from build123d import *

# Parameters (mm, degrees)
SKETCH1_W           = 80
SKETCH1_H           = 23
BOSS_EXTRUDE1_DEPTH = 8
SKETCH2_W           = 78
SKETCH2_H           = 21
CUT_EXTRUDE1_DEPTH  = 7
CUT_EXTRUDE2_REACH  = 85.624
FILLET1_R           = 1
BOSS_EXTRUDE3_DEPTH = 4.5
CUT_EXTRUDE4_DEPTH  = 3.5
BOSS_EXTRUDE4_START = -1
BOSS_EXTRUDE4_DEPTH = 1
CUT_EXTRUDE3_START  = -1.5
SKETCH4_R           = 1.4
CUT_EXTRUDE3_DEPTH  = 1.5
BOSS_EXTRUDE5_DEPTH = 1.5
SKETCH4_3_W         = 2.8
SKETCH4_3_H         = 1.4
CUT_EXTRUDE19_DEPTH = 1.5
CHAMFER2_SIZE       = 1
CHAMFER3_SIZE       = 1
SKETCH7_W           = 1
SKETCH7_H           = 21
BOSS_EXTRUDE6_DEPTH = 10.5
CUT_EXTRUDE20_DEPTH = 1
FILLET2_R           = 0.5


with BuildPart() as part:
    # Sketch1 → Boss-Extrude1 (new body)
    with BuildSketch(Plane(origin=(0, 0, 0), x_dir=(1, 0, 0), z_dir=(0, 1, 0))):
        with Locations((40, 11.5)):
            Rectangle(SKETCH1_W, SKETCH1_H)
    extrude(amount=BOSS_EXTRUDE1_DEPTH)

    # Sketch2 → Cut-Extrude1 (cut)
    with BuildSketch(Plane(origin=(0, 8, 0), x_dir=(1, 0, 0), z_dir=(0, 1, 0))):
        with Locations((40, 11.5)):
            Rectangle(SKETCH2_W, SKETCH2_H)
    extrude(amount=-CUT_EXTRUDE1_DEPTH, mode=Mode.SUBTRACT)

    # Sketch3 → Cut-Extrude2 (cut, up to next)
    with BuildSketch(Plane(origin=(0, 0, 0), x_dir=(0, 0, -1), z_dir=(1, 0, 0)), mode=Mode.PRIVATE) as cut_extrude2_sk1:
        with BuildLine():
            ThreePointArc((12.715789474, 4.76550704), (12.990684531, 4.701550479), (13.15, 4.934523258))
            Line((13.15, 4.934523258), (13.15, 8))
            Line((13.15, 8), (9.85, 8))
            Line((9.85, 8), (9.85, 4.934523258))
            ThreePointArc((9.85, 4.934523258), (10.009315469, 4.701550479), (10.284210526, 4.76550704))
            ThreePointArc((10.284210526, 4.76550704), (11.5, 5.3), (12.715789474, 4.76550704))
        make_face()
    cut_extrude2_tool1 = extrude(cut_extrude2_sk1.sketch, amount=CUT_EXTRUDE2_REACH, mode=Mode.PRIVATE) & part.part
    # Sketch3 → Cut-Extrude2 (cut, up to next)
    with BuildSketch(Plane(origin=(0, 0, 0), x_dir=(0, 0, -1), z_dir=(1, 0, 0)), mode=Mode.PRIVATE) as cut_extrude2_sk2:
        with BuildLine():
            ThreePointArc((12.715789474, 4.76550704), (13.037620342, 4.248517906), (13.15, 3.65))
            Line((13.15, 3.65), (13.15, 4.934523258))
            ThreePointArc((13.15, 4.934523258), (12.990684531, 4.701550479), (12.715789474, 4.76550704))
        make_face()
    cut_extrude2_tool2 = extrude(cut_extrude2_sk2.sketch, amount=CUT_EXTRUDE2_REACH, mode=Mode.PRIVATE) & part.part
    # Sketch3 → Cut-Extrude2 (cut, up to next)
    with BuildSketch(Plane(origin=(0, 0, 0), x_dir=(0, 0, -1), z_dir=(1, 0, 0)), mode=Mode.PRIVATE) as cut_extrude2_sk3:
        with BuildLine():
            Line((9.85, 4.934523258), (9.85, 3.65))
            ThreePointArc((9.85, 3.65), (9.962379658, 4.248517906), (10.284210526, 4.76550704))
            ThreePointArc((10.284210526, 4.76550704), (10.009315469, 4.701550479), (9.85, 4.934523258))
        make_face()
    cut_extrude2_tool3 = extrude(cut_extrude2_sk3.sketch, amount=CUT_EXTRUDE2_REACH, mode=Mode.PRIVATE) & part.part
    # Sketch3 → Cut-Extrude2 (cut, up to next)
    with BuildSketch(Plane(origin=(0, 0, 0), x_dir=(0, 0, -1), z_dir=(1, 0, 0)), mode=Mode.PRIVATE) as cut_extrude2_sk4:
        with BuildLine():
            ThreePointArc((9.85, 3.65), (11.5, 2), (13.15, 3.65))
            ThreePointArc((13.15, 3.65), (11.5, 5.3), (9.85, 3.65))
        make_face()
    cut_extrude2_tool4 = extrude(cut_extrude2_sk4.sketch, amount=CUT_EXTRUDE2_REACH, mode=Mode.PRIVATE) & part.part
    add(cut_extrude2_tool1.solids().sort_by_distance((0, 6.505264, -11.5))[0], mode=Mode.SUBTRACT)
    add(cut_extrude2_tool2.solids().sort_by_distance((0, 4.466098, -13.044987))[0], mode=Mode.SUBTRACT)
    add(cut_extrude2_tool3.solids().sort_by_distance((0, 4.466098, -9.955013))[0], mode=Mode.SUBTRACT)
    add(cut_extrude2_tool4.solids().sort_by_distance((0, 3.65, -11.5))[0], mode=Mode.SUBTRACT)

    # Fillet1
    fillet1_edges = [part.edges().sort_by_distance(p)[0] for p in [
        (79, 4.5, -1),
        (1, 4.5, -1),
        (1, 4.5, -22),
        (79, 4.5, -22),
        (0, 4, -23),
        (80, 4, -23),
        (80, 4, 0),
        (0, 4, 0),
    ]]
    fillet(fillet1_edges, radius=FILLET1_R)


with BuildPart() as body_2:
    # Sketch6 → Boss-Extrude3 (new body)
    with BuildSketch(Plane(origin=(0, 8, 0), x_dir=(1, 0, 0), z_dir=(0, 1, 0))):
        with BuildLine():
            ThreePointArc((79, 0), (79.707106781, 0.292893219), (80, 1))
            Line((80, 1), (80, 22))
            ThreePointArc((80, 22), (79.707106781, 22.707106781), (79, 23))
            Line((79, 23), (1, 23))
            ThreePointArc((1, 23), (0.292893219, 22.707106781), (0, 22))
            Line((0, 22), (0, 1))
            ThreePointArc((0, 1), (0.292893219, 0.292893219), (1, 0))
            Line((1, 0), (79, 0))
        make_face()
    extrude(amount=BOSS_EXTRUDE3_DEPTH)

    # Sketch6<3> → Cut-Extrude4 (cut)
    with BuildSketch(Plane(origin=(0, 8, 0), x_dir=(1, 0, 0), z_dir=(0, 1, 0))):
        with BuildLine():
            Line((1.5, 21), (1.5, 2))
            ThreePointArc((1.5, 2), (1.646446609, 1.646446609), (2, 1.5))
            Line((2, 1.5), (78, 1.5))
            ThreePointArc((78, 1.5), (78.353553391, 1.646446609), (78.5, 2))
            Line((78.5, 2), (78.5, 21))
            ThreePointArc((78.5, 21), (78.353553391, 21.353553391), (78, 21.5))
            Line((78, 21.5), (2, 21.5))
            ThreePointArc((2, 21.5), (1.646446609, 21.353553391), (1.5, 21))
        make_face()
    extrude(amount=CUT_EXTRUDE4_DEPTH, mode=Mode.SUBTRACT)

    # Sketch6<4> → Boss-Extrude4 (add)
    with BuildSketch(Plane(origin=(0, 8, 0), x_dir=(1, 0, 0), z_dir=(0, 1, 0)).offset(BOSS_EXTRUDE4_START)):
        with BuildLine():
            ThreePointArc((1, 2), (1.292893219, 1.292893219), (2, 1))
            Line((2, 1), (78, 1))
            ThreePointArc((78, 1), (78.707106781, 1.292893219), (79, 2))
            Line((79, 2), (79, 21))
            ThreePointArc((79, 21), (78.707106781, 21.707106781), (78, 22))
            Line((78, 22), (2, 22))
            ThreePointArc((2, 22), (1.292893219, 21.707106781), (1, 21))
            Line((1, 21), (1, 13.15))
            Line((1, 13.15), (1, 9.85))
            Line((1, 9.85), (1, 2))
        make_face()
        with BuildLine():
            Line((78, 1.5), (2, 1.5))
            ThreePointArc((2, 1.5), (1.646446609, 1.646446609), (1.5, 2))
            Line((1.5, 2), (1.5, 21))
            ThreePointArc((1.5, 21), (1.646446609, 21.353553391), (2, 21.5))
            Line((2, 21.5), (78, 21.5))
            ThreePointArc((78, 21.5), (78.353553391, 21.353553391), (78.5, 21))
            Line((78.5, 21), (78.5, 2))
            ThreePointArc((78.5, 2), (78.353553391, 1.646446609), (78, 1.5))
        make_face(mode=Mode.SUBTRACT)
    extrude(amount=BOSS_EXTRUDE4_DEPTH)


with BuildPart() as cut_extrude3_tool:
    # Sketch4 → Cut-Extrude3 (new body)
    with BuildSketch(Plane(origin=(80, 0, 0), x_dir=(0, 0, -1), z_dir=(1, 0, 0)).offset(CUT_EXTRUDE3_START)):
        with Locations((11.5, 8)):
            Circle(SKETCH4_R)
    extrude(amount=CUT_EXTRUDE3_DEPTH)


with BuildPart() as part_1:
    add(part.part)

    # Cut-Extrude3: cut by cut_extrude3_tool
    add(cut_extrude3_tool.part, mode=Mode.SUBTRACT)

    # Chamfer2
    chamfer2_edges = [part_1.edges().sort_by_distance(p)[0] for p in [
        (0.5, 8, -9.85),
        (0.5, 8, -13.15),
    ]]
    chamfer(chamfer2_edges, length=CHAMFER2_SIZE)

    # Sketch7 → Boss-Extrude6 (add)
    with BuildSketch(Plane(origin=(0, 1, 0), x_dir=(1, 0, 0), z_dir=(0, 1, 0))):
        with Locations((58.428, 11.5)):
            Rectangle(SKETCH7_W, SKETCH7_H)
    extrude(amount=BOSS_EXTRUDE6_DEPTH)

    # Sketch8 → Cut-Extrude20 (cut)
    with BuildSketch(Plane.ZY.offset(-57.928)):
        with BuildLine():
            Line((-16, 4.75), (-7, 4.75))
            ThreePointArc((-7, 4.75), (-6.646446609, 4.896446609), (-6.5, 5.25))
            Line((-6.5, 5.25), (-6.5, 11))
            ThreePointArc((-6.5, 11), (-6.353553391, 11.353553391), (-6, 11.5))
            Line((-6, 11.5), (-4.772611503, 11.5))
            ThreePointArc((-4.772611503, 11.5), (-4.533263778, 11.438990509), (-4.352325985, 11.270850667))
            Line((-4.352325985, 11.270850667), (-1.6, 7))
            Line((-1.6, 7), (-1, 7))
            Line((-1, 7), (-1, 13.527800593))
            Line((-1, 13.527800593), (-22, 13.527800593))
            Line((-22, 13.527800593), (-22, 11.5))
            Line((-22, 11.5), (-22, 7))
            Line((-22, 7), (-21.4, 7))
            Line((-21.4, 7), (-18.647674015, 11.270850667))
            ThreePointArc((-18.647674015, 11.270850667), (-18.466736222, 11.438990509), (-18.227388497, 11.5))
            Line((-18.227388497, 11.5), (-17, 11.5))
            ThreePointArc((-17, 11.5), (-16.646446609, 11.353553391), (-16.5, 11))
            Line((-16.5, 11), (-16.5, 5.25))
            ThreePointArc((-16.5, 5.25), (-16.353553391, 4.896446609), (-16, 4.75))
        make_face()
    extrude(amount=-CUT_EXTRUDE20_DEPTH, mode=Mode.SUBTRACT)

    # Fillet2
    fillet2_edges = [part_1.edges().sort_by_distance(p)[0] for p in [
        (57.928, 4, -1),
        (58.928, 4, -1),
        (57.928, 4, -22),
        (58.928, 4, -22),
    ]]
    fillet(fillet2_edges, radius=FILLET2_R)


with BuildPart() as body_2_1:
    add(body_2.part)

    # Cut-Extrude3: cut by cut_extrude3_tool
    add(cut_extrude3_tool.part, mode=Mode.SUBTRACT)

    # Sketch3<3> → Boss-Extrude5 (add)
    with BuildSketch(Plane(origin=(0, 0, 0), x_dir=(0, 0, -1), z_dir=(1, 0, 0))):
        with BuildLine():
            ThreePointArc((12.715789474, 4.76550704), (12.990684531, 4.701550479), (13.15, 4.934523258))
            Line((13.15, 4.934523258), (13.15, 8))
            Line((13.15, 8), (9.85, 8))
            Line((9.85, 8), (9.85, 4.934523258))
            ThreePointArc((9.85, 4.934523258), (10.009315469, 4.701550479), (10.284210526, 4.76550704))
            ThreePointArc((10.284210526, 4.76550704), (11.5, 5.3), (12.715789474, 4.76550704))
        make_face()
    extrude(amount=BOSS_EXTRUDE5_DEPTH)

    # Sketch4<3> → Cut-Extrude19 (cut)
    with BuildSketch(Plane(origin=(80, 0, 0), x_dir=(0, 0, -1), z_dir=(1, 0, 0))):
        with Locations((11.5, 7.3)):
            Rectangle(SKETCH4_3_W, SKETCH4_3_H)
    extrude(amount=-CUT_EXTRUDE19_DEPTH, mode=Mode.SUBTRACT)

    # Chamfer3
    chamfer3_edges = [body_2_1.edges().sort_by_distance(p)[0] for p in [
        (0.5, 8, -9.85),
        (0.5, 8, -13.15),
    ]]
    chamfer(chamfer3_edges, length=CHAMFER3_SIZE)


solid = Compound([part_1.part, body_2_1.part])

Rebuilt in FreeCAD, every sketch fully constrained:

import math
import FreeCAD as App
import Part
import Sketcher

V = App.Vector


def edges_at(feature, points):
    """Names of the edges that pass closest to the given points."""
    edges = feature.Shape.Edges
    near = lambda p: min(range(len(edges)), key=lambda i: edges[i].distToShape(Part.Vertex(*p))[0])
    return sorted({f"Edge{near(p) + 1}" for p in points})


def add_polygon(sketch, points):
    """Adds a closed chain of lines whose ends are joined by coincident constraints."""
    first, n = sketch.GeometryCount, len(points)
    for a, b in zip(points, points[1:] + points[:1]):
        sketch.addGeometry(Part.LineSegment(App.Vector(*a, 0), App.Vector(*b, 0)), False)
    for i in range(n):
        sketch.addConstraint(Sketcher.Constraint("Coincident", first + i, 2, first + (i + 1) % n, 1))

doc = App.newDocument("Part")
body = doc.addObject("PartDesign::Body", "Body")

# Sketch on XZ plane
sketch1 = body.newObject("Sketcher::SketchObject", "Sketch")
sketch1.AttachmentSupport = (doc.getObject("XZ_Plane"), [""])
sketch1.MapMode = "FlatFace"
add_polygon(sketch1, [(0, -23), (0, 0), (80, 0), (80, -23)])  # lines 0-3
sketch1.addConstraint(Sketcher.Constraint("Vertical", 0))
sketch1.addConstraint(Sketcher.Constraint("Horizontal", 1))
sketch1.addConstraint(Sketcher.Constraint("Vertical", 2))
sketch1.addConstraint(Sketcher.Constraint("Horizontal", 3))
sketch1.addConstraint(Sketcher.Constraint("Coincident", 0, 2, -1, 1))
sketch1.addConstraint(Sketcher.Constraint("DistanceX", 1, 1, 1, 2, 80.0))
sketch1.addConstraint(Sketcher.Constraint("DistanceY", 0, 1, 0, 2, 23.0))
pad1 = body.newObject("PartDesign::Pad", "Pad")
pad1.Profile = sketch1
pad1.Length = 8
pad1.Reversed = True

# Sketch on XZ plane
sketch2 = body.newObject("Sketcher::SketchObject", "Sketch001")
sketch2.AttachmentSupport = (doc.getObject("XZ_Plane"), [""])
sketch2.MapMode = "FlatFace"
sketch2.AttachmentOffset = App.Placement(V(0, 0, -8), App.Rotation())
add_polygon(sketch2, [(1, -22), (1, -1), (79, -1), (79, -22)])  # lines 0-3
sketch2.addConstraint(Sketcher.Constraint("Vertical", 0))
sketch2.addConstraint(Sketcher.Constraint("Horizontal", 1))
sketch2.addConstraint(Sketcher.Constraint("Vertical", 2))
sketch2.addConstraint(Sketcher.Constraint("Horizontal", 3))
sketch2.addConstraint(Sketcher.Constraint("DistanceX", 1, 1, 1, 2, 78.0))
sketch2.addConstraint(Sketcher.Constraint("DistanceY", 0, 1, 0, 2, 21.0))
sketch2.addConstraint(Sketcher.Constraint("DistanceX", -1, 1, 0, 2, 1.0))
sketch2.addConstraint(Sketcher.Constraint("DistanceY", 0, 2, -1, 1, 1.0))
pocket1 = body.newObject("PartDesign::Pocket", "Pocket")
pocket1.Profile = sketch2
pocket1.Length = 7
pocket1.Reversed = True

# Sketch on YZ plane
sketch3 = body.newObject("Sketcher::SketchObject", "Sketch002")
sketch3.AttachmentSupport = (doc.getObject("YZ_Plane"), [""])
sketch3.MapMode = "FlatFace"
sketch3.addGeometry(Part.ArcOfCircle(Part.Circle(V(4.93, -12.9, 0), V(0, 0, 1), 0.25), math.radians(133), math.radians(270)), False)
sketch3.addGeometry(Part.LineSegment(V(4.93, -13.15, 0), V(8, -13.15, 0)), False)
sketch3.addGeometry(Part.LineSegment(V(8, -13.15, 0), V(8, -9.85, 0)), False)
sketch3.addGeometry(Part.LineSegment(V(8, -9.85, 0), V(4.93, -9.85, 0)), False)
sketch3.addGeometry(Part.ArcOfCircle(Part.Circle(V(4.93, -10.1, 0), V(0, 0, 1), 0.25), math.radians(90), math.radians(227)), False)
sketch3.addGeometry(Part.ArcOfCircle(Part.Circle(V(3.65, -11.5, 0), V(0, 0, 1), 1.65), math.radians(-47), math.radians(47)), False)
sketch3.addConstraint(Sketcher.Constraint("Tangent", 0, 2, 1, 1))
sketch3.addConstraint(Sketcher.Constraint("Coincident", 1, 2, 2, 1))
sketch3.addConstraint(Sketcher.Constraint("Coincident", 2, 2, 3, 1))
sketch3.addConstraint(Sketcher.Constraint("Tangent", 3, 2, 4, 1))
sketch3.addConstraint(Sketcher.Constraint("Tangent", 4, 2, 5, 2))
sketch3.addConstraint(Sketcher.Constraint("Tangent", 5, 1, 0, 1))
sketch3.addConstraint(Sketcher.Constraint("Horizontal", 1))
sketch3.addConstraint(Sketcher.Constraint("Vertical", 2))
sketch3.addConstraint(Sketcher.Constraint("Horizontal", 3))
sketch3.addConstraint(Sketcher.Constraint("Equal", 0, 4))
sketch3.addConstraint(Sketcher.Constraint("Vertical", 0, 3, 4, 3))
sketch3.addConstraint(Sketcher.Constraint("Radius", 0, 0.25))
sketch3.addConstraint(Sketcher.Constraint("Radius", 5, 1.65))
sketch3.addConstraint(Sketcher.Constraint("DistanceY", 2, 1, 2, 2, 3.3))
sketch3.addConstraint(Sketcher.Constraint("DistanceX", -1, 1, 1, 2, 8.0))
sketch3.addConstraint(Sketcher.Constraint("DistanceY", 0, 3, -1, 1, 12.9))
sketch3.addConstraint(Sketcher.Constraint("DistanceX", -1, 1, 5, 3, 3.65))
pocket2 = body.newObject("PartDesign::Pocket", "Pocket001")
pocket2.Profile = sketch3
pocket2.Type = "UpToFirst"
pocket2.Reversed = True

# Sketch on YZ plane
sketch4 = body.newObject("Sketcher::SketchObject", "Sketch003")
sketch4.AttachmentSupport = (doc.getObject("YZ_Plane"), [""])
sketch4.MapMode = "FlatFace"
sketch4.addGeometry(Part.ArcOfCircle(Part.Circle(V(3.65, -11.5, 0), V(0, 0, 1), 1.65), math.radians(-90), math.radians(-47)), False)
sketch4.addGeometry(Part.LineSegment(V(3.65, -13.15, 0), V(4.93, -13.15, 0)), False)
sketch4.addGeometry(Part.ArcOfCircle(Part.Circle(V(4.93, -12.9, 0), V(0, 0, 1), 0.25), math.radians(133), math.radians(270)), False)
sketch4.addConstraint(Sketcher.Constraint("Tangent", 0, 1, 1, 1))
sketch4.addConstraint(Sketcher.Constraint("Tangent", 1, 2, 2, 2))
sketch4.addConstraint(Sketcher.Constraint("Tangent", 2, 1, 0, 2))
sketch4.addConstraint(Sketcher.Constraint("Horizontal", 1))
sketch4.addConstraint(Sketcher.Constraint("Radius", 0, 1.65))
sketch4.addConstraint(Sketcher.Constraint("Radius", 2, 0.25))
sketch4.addConstraint(Sketcher.Constraint("DistanceY", 0, 3, -1, 1, 11.5))
sketch4.addConstraint(Sketcher.Constraint("DistanceX", -1, 1, 0, 3, 3.65))
pocket3 = body.newObject("PartDesign::Pocket", "Pocket002")
pocket3.Profile = sketch4
pocket3.Type = "UpToFirst"
pocket3.Reversed = True

# Sketch on YZ plane
sketch5 = body.newObject("Sketcher::SketchObject", "Sketch004")
sketch5.AttachmentSupport = (doc.getObject("YZ_Plane"), [""])
sketch5.MapMode = "FlatFace"
sketch5.addGeometry(Part.LineSegment(V(4.93, -9.85, 0), V(3.65, -9.85, 0)), False)
sketch5.addGeometry(Part.ArcOfCircle(Part.Circle(V(3.65, -11.5, 0), V(0, 0, 1), 1.65), math.radians(47), math.radians(90)), False)
sketch5.addGeometry(Part.ArcOfCircle(Part.Circle(V(4.93, -10.1, 0), V(0, 0, 1), 0.25), math.radians(90), math.radians(227)), False)
sketch5.addConstraint(Sketcher.Constraint("Tangent", 0, 2, 1, 2))
sketch5.addConstraint(Sketcher.Constraint("Tangent", 1, 1, 2, 2))
sketch5.addConstraint(Sketcher.Constraint("Tangent", 2, 1, 0, 1))
sketch5.addConstraint(Sketcher.Constraint("Horizontal", 0))
sketch5.addConstraint(Sketcher.Constraint("Radius", 1, 1.65))
sketch5.addConstraint(Sketcher.Constraint("Radius", 2, 0.25))
sketch5.addConstraint(Sketcher.Constraint("DistanceY", 1, 3, -1, 1, 11.5))
sketch5.addConstraint(Sketcher.Constraint("DistanceX", -1, 1, 1, 3, 3.65))
pocket4 = body.newObject("PartDesign::Pocket", "Pocket003")
pocket4.Profile = sketch5
pocket4.Type = "UpToFirst"
pocket4.Reversed = True

# Sketch on YZ plane
sketch6 = body.newObject("Sketcher::SketchObject", "Sketch005")
sketch6.AttachmentSupport = (doc.getObject("YZ_Plane"), [""])
sketch6.MapMode = "FlatFace"
sketch6.addGeometry(Part.Circle(V(3.6, -11.5, 0), V(0, 0, 1), 1.6), False)
sketch6.addConstraint(Sketcher.Constraint("Diameter", 0, 3.3))
sketch6.addConstraint(Sketcher.Constraint("DistanceY", 0, 3, -1, 1, 11.5))
sketch6.addConstraint(Sketcher.Constraint("DistanceX", -1, 1, 0, 3, 3.65))
pocket5 = body.newObject("PartDesign::Pocket", "Pocket004")
pocket5.Profile = sketch6
pocket5.Type = "UpToFirst"
pocket5.Reversed = True
doc.recompute()

fillet = body.newObject("PartDesign::Fillet", "Fillet")
fillet.Base = (pocket5, edges_at(pocket5, [
    (79, 4.5, -1),
    (1, 4.5, -1),
    (1, 4.5, -22),
    (79, 4.5, -22),
    (0, 4, -23),
    (80, 4, -23),
    (80, 4, 0),
    (0, 4, 0),
]))
fillet.Radius = 1
body2 = doc.addObject("PartDesign::Body", "Body001")

# Sketch on XZ plane
sketch7 = body2.newObject("Sketcher::SketchObject", "Sketch006")
sketch7.AttachmentSupport = (doc.getObject("XZ_Plane001"), [""])
sketch7.MapMode = "FlatFace"
sketch7.AttachmentOffset = App.Placement(V(0, 0, -8), App.Rotation())
sketch7.addGeometry(Part.ArcOfCircle(Part.Circle(V(79, -1, 0), V(0, 0, 1), 1), math.radians(0), math.radians(90)), False)
sketch7.addGeometry(Part.LineSegment(V(80, -1, 0), V(80, -22, 0)), False)
sketch7.addGeometry(Part.ArcOfCircle(Part.Circle(V(79, -22, 0), V(0, 0, 1), 1), math.radians(-90), math.radians(0)), False)
sketch7.addGeometry(Part.LineSegment(V(79, -23, 0), V(1, -23, 0)), False)
sketch7.addGeometry(Part.ArcOfCircle(Part.Circle(V(1, -22, 0), V(0, 0, 1), 1), math.radians(-180), math.radians(-90)), False)
sketch7.addGeometry(Part.LineSegment(V(0, -22, 0), V(0, -1, 0)), False)
sketch7.addGeometry(Part.ArcOfCircle(Part.Circle(V(1, -1, 0), V(0, 0, 1), 1), math.radians(90), math.radians(180)), False)
sketch7.addGeometry(Part.LineSegment(V(1, 0, 0), V(79, 0, 0)), False)
sketch7.addConstraint(Sketcher.Constraint("Tangent", 0, 1, 1, 1))
sketch7.addConstraint(Sketcher.Constraint("Tangent", 1, 2, 2, 2))
sketch7.addConstraint(Sketcher.Constraint("Tangent", 2, 1, 3, 1))
sketch7.addConstraint(Sketcher.Constraint("Tangent", 3, 2, 4, 2))
sketch7.addConstraint(Sketcher.Constraint("Tangent", 4, 1, 5, 1))
sketch7.addConstraint(Sketcher.Constraint("Tangent", 5, 2, 6, 2))
sketch7.addConstraint(Sketcher.Constraint("Tangent", 6, 1, 7, 1))
sketch7.addConstraint(Sketcher.Constraint("Tangent", 7, 2, 0, 2))
sketch7.addConstraint(Sketcher.Constraint("Vertical", 1))
sketch7.addConstraint(Sketcher.Constraint("Horizontal", 3))
sketch7.addConstraint(Sketcher.Constraint("Vertical", 5))
sketch7.addConstraint(Sketcher.Constraint("Horizontal", 7))
sketch7.addConstraint(Sketcher.Constraint("Equal", 0, 2))
sketch7.addConstraint(Sketcher.Constraint("Equal", 2, 4))
sketch7.addConstraint(Sketcher.Constraint("Equal", 4, 6))
sketch7.addConstraint(Sketcher.Constraint("PointOnObject", 4, 1, -2))
sketch7.addConstraint(Sketcher.Constraint("PointOnObject", 6, 1, -1))
sketch7.addConstraint(Sketcher.Constraint("Radius", 0, 1.0))
sketch7.addConstraint(Sketcher.Constraint("DistanceX", 3, 2, 3, 1, 78.0))
sketch7.addConstraint(Sketcher.Constraint("DistanceY", 1, 2, 1, 1, 21.0))
pad2 = body2.newObject("PartDesign::Pad", "Pad001")
pad2.Profile = sketch7
pad2.Length = 4.5
pad2.Reversed = True

# Sketch on XZ plane
sketch8 = body2.newObject("Sketcher::SketchObject", "Sketch007")
sketch8.AttachmentSupport = (doc.getObject("XZ_Plane001"), [""])
sketch8.MapMode = "FlatFace"
sketch8.AttachmentOffset = App.Placement(V(0, 0, -8), App.Rotation())
sketch8.addGeometry(Part.LineSegment(V(1.5, -21, 0), V(1.5, -2, 0)), False)
sketch8.addGeometry(Part.ArcOfCircle(Part.Circle(V(2, -2, 0), V(0, 0, 1), 0.5), math.radians(90), math.radians(180)), False)
sketch8.addGeometry(Part.LineSegment(V(2, -1.5, 0), V(78, -1.5, 0)), False)
sketch8.addGeometry(Part.ArcOfCircle(Part.Circle(V(78, -2, 0), V(0, 0, 1), 0.5), math.radians(0), math.radians(90)), False)
sketch8.addGeometry(Part.LineSegment(V(78.5, -2, 0), V(78.5, -21, 0)), False)
sketch8.addGeometry(Part.ArcOfCircle(Part.Circle(V(78, -21, 0), V(0, 0, 1), 0.5), math.radians(-90), math.radians(0)), False)
sketch8.addGeometry(Part.LineSegment(V(78, -21.5, 0), V(2, -21.5, 0)), False)
sketch8.addGeometry(Part.ArcOfCircle(Part.Circle(V(2, -21, 0), V(0, 0, 1), 0.5), math.radians(180), math.radians(270)), False)
sketch8.addConstraint(Sketcher.Constraint("Tangent", 0, 2, 1, 2))
sketch8.addConstraint(Sketcher.Constraint("Tangent", 1, 1, 2, 1))
sketch8.addConstraint(Sketcher.Constraint("Tangent", 2, 2, 3, 2))
sketch8.addConstraint(Sketcher.Constraint("Tangent", 3, 1, 4, 1))
sketch8.addConstraint(Sketcher.Constraint("Tangent", 4, 2, 5, 2))
sketch8.addConstraint(Sketcher.Constraint("Tangent", 5, 1, 6, 1))
sketch8.addConstraint(Sketcher.Constraint("Tangent", 6, 2, 7, 2))
sketch8.addConstraint(Sketcher.Constraint("Tangent", 7, 1, 0, 1))
sketch8.addConstraint(Sketcher.Constraint("Vertical", 0))
sketch8.addConstraint(Sketcher.Constraint("Horizontal", 2))
sketch8.addConstraint(Sketcher.Constraint("Vertical", 4))
sketch8.addConstraint(Sketcher.Constraint("Horizontal", 6))
sketch8.addConstraint(Sketcher.Constraint("Equal", 1, 3))
sketch8.addConstraint(Sketcher.Constraint("Equal", 3, 5))
sketch8.addConstraint(Sketcher.Constraint("Equal", 5, 7))
sketch8.addConstraint(Sketcher.Constraint("Radius", 1, 0.5))
sketch8.addConstraint(Sketcher.Constraint("DistanceX", 2, 1, 2, 2, 76.0))
sketch8.addConstraint(Sketcher.Constraint("DistanceY", 0, 1, 0, 2, 19.0))
sketch8.addConstraint(Sketcher.Constraint("DistanceX", -1, 1, 1, 3, 2.0))
sketch8.addConstraint(Sketcher.Constraint("DistanceY", 1, 3, -1, 1, 2.0))
pocket6 = body2.newObject("PartDesign::Pocket", "Pocket005")
pocket6.Profile = sketch8
pocket6.Length = 3.5

# Sketch on XZ plane
sketch9 = body2.newObject("Sketcher::SketchObject", "Sketch008")
sketch9.AttachmentSupport = (doc.getObject("XZ_Plane001"), [""])
sketch9.MapMode = "FlatFace"
sketch9.AttachmentOffset = App.Placement(V(0, 0, -7), App.Rotation())
sketch9.addGeometry(Part.ArcOfCircle(Part.Circle(V(2, -2, 0), V(0, 0, 1), 1), math.radians(90), math.radians(180)), False)
sketch9.addGeometry(Part.LineSegment(V(2, -1, 0), V(78, -1, 0)), False)
sketch9.addGeometry(Part.ArcOfCircle(Part.Circle(V(78, -2, 0), V(0, 0, 1), 1), math.radians(0), math.radians(90)), False)
sketch9.addGeometry(Part.LineSegment(V(79, -2, 0), V(79, -21, 0)), False)
sketch9.addGeometry(Part.ArcOfCircle(Part.Circle(V(78, -21, 0), V(0, 0, 1), 1), math.radians(-90), math.radians(0)), False)
sketch9.addGeometry(Part.LineSegment(V(78, -22, 0), V(2, -22, 0)), False)
sketch9.addGeometry(Part.ArcOfCircle(Part.Circle(V(2, -21, 0), V(0, 0, 1), 1), math.radians(-180), math.radians(-90)), False)
sketch9.addGeometry(Part.LineSegment(V(1, -21, 0), V(1, -2, 0)), False)
sketch9.addGeometry(Part.ArcOfCircle(Part.Circle(V(78, -2, 0), V(0, 0, 1), 0.5), math.radians(0), math.radians(90)), False)
sketch9.addGeometry(Part.LineSegment(V(78, -1.5, 0), V(2, -1.5, 0)), False)
sketch9.addGeometry(Part.ArcOfCircle(Part.Circle(V(2, -2, 0), V(0, 0, 1), 0.5), math.radians(90), math.radians(180)), False)
sketch9.addGeometry(Part.LineSegment(V(1.5, -2, 0), V(1.5, -21, 0)), False)
sketch9.addGeometry(Part.ArcOfCircle(Part.Circle(V(2, -21, 0), V(0, 0, 1), 0.5), math.radians(180), math.radians(270)), False)
sketch9.addGeometry(Part.LineSegment(V(2, -21.5, 0), V(78, -21.5, 0)), False)
sketch9.addGeometry(Part.ArcOfCircle(Part.Circle(V(78, -21, 0), V(0, 0, 1), 0.5), math.radians(-90), math.radians(0)), False)
sketch9.addGeometry(Part.LineSegment(V(78.5, -21, 0), V(78.5, -2, 0)), False)
sketch9.addConstraint(Sketcher.Constraint("Tangent", 0, 1, 1, 1))
sketch9.addConstraint(Sketcher.Constraint("Tangent", 1, 2, 2, 2))
sketch9.addConstraint(Sketcher.Constraint("Tangent", 2, 1, 3, 1))
sketch9.addConstraint(Sketcher.Constraint("Tangent", 3, 2, 4, 2))
sketch9.addConstraint(Sketcher.Constraint("Tangent", 4, 1, 5, 1))
sketch9.addConstraint(Sketcher.Constraint("Tangent", 5, 2, 6, 2))
sketch9.addConstraint(Sketcher.Constraint("Tangent", 6, 1, 7, 1))
sketch9.addConstraint(Sketcher.Constraint("Tangent", 7, 2, 0, 2))
sketch9.addConstraint(Sketcher.Constraint("Tangent", 8, 2, 9, 1))
sketch9.addConstraint(Sketcher.Constraint("Tangent", 9, 2, 10, 1))
sketch9.addConstraint(Sketcher.Constraint("Tangent", 10, 2, 11, 1))
sketch9.addConstraint(Sketcher.Constraint("Tangent", 11, 2, 12, 1))
sketch9.addConstraint(Sketcher.Constraint("Tangent", 12, 2, 13, 1))
sketch9.addConstraint(Sketcher.Constraint("Tangent", 13, 2, 14, 1))
sketch9.addConstraint(Sketcher.Constraint("Tangent", 14, 2, 15, 1))
sketch9.addConstraint(Sketcher.Constraint("Tangent", 15, 2, 8, 1))
sketch9.addConstraint(Sketcher.Constraint("Horizontal", 1))
sketch9.addConstraint(Sketcher.Constraint("Vertical", 3))
sketch9.addConstraint(Sketcher.Constraint("Horizontal", 5))
sketch9.addConstraint(Sketcher.Constraint("Vertical", 7))
sketch9.addConstraint(Sketcher.Constraint("Horizontal", 9))
sketch9.addConstraint(Sketcher.Constraint("Vertical", 11))
sketch9.addConstraint(Sketcher.Constraint("Horizontal", 13))
sketch9.addConstraint(Sketcher.Constraint("Vertical", 15))
sketch9.addConstraint(Sketcher.Constraint("Coincident", 8, 3, 2, 3))
sketch9.addConstraint(Sketcher.Constraint("Coincident", 10, 3, 0, 3))
sketch9.addConstraint(Sketcher.Constraint("Coincident", 12, 3, 6, 3))
sketch9.addConstraint(Sketcher.Constraint("Equal", 0, 2))
sketch9.addConstraint(Sketcher.Constraint("Equal", 2, 4))
sketch9.addConstraint(Sketcher.Constraint("Equal", 4, 6))
sketch9.addConstraint(Sketcher.Constraint("Equal", 12, 14))
sketch9.addConstraint(Sketcher.Constraint("Radius", 0, 1.0))
sketch9.addConstraint(Sketcher.Constraint("Radius", 8, 0.5))
sketch9.addConstraint(Sketcher.Constraint("DistanceX", 1, 1, 1, 2, 76.0))
sketch9.addConstraint(Sketcher.Constraint("DistanceY", 3, 2, 3, 1, 19.0))
sketch9.addConstraint(Sketcher.Constraint("DistanceX", -1, 1, 0, 3, 2.0))
sketch9.addConstraint(Sketcher.Constraint("DistanceY", 0, 3, -1, 1, 2.0))
pad3 = body2.newObject("PartDesign::Pad", "Pad002")
pad3.Profile = sketch9
pad3.Length = 1
pad3.Reversed = True
body3 = doc.addObject("PartDesign::Body", "Body002")

# Sketch on YZ plane
sketch10 = body3.newObject("Sketcher::SketchObject", "Sketch009")
sketch10.AttachmentSupport = (doc.getObject("YZ_Plane002"), [""])
sketch10.MapMode = "FlatFace"
sketch10.AttachmentOffset = App.Placement(V(0, 0, 78.5), App.Rotation())
sketch10.addGeometry(Part.Circle(V(8, -11.5, 0), V(0, 0, 1), 1.4), False)
sketch10.addConstraint(Sketcher.Constraint("Diameter", 0, 2.8))
sketch10.addConstraint(Sketcher.Constraint("DistanceX", -1, 1, 0, 3, 8.0))
sketch10.addConstraint(Sketcher.Constraint("DistanceY", 0, 3, -1, 1, 11.5))
pad4 = body3.newObject("PartDesign::Pad", "Pad003")
pad4.Profile = sketch10
pad4.Length = 1.5
doc.recompute()

body4 = doc.addObject("PartDesign::Body", "Body003")
body4.BaseFeature = body3
boolean = body.newObject("PartDesign::Boolean", "Boolean")
boolean.Type = "Cut"
boolean.addObjects([body4])
doc.recompute()

chamfer = body.newObject("PartDesign::Chamfer", "Chamfer")
chamfer.Base = (boolean, edges_at(boolean, [(0.5, 8, -9.85), (0.5, 8, -13.15)]))
chamfer.Size = 1

# Sketch on XZ plane
sketch11 = body.newObject("Sketcher::SketchObject", "Sketch010")
sketch11.AttachmentSupport = (doc.getObject("XZ_Plane"), [""])
sketch11.MapMode = "FlatFace"
sketch11.AttachmentOffset = App.Placement(V(0, 0, -1), App.Rotation())
add_polygon(sketch11, [(57.9, -22), (57.9, -1), (58.9, -1), (58.9, -22)])  # lines 0-3
sketch11.addConstraint(Sketcher.Constraint("Vertical", 0))
sketch11.addConstraint(Sketcher.Constraint("Horizontal", 1))
sketch11.addConstraint(Sketcher.Constraint("Vertical", 2))
sketch11.addConstraint(Sketcher.Constraint("Horizontal", 3))
sketch11.addConstraint(Sketcher.Constraint("DistanceX", 1, 1, 1, 2, 1.0))
sketch11.addConstraint(Sketcher.Constraint("DistanceY", 0, 1, 0, 2, 21.0))
sketch11.addConstraint(Sketcher.Constraint("DistanceY", 0, 2, -1, 1, 1.0))
sketch11.addConstraint(Sketcher.Constraint("DistanceX", -1, 1, 0, 2, 57.928))
pad5 = body.newObject("PartDesign::Pad", "Pad004")
pad5.Profile = sketch11
pad5.Length = 10.5
pad5.Reversed = True

# Sketch on YZ plane
sketch12 = body.newObject("Sketcher::SketchObject", "Sketch011")
sketch12.AttachmentSupport = (doc.getObject("YZ_Plane"), [""])
sketch12.MapMode = "FlatFace"
sketch12.AttachmentOffset = App.Placement(V(0, 0, 57.928), App.Rotation())
sketch12.addGeometry(Part.LineSegment(V(4.75, -16, 0), V(4.75, -7, 0)), False)
sketch12.addGeometry(Part.ArcOfCircle(Part.Circle(V(5.25, -7, 0), V(0, 0, 1), 0.5), math.radians(90), math.radians(180)), False)
sketch12.addGeometry(Part.LineSegment(V(5.25, -6.5, 0), V(11, -6.5, 0)), False)
sketch12.addGeometry(Part.ArcOfCircle(Part.Circle(V(11, -6, 0), V(0, 0, 1), 0.5), math.radians(-90), math.radians(0)), False)
sketch12.addGeometry(Part.LineSegment(V(11.5, -6, 0), V(11.5, -4.77, 0)), False)
sketch12.addGeometry(Part.ArcOfCircle(Part.Circle(V(11, -4.77, 0), V(0, 0, 1), 0.5), math.radians(0), math.radians(57)), False)
sketch12.addGeometry(Part.LineSegment(V(11.27, -4.35, 0), V(7, -1.6, 0)), False)
sketch12.addGeometry(Part.LineSegment(V(7, -1.6, 0), V(7, -1, 0)), False)
sketch12.addGeometry(Part.LineSegment(V(7, -1, 0), V(13.53, -1, 0)), False)
sketch12.addGeometry(Part.LineSegment(V(13.53, -1, 0), V(13.53, -22, 0)), False)
sketch12.addGeometry(Part.LineSegment(V(13.53, -22, 0), V(7, -22, 0)), False)
sketch12.addGeometry(Part.LineSegment(V(7, -22, 0), V(7, -21.4, 0)), False)
sketch12.addGeometry(Part.LineSegment(V(7, -21.4, 0), V(11.27, -18.65, 0)), False)
sketch12.addGeometry(Part.ArcOfCircle(Part.Circle(V(11, -18.23, 0), V(0, 0, 1), 0.5), math.radians(-57), math.radians(0)), False)
sketch12.addGeometry(Part.LineSegment(V(11.5, -18.23, 0), V(11.5, -17, 0)), False)
sketch12.addGeometry(Part.ArcOfCircle(Part.Circle(V(11, -17, 0), V(0, 0, 1), 0.5), math.radians(0), math.radians(90)), False)
sketch12.addGeometry(Part.LineSegment(V(11, -16.5, 0), V(5.25, -16.5, 0)), False)
sketch12.addGeometry(Part.ArcOfCircle(Part.Circle(V(5.25, -16, 0), V(0, 0, 1), 0.5), math.radians(180), math.radians(270)), False)
sketch12.addConstraint(Sketcher.Constraint("Tangent", 0, 2, 1, 2))
sketch12.addConstraint(Sketcher.Constraint("Tangent", 1, 1, 2, 1))
sketch12.addConstraint(Sketcher.Constraint("Tangent", 2, 2, 3, 1))
sketch12.addConstraint(Sketcher.Constraint("Tangent", 3, 2, 4, 1))
sketch12.addConstraint(Sketcher.Constraint("Tangent", 4, 2, 5, 1))
sketch12.addConstraint(Sketcher.Constraint("Tangent", 5, 2, 6, 1))
sketch12.addConstraint(Sketcher.Constraint("Coincident", 6, 2, 7, 1))
sketch12.addConstraint(Sketcher.Constraint("Coincident", 7, 2, 8, 1))
sketch12.addConstraint(Sketcher.Constraint("Coincident", 8, 2, 9, 1))
sketch12.addConstraint(Sketcher.Constraint("Coincident", 9, 2, 10, 1))
sketch12.addConstraint(Sketcher.Constraint("Coincident", 10, 2, 11, 1))
sketch12.addConstraint(Sketcher.Constraint("Coincident", 11, 2, 12, 1))
sketch12.addConstraint(Sketcher.Constraint("Tangent", 12, 2, 13, 1))
sketch12.addConstraint(Sketcher.Constraint("Tangent", 13, 2, 14, 1))
sketch12.addConstraint(Sketcher.Constraint("Tangent", 14, 2, 15, 1))
sketch12.addConstraint(Sketcher.Constraint("Tangent", 15, 2, 16, 1))
sketch12.addConstraint(Sketcher.Constraint("Tangent", 16, 2, 17, 2))
sketch12.addConstraint(Sketcher.Constraint("Tangent", 17, 1, 0, 1))
sketch12.addConstraint(Sketcher.Constraint("Vertical", 0))
sketch12.addConstraint(Sketcher.Constraint("Horizontal", 2))
sketch12.addConstraint(Sketcher.Constraint("Vertical", 4))
sketch12.addConstraint(Sketcher.Constraint("Vertical", 7))
sketch12.addConstraint(Sketcher.Constraint("Horizontal", 8))
sketch12.addConstraint(Sketcher.Constraint("Vertical", 9))
sketch12.addConstraint(Sketcher.Constraint("Horizontal", 10))
sketch12.addConstraint(Sketcher.Constraint("Vertical", 11))
sketch12.addConstraint(Sketcher.Constraint("Vertical", 14))
sketch12.addConstraint(Sketcher.Constraint("Horizontal", 16))
sketch12.addConstraint(Sketcher.Constraint("Equal", 1, 3))
sketch12.addConstraint(Sketcher.Constraint("Equal", 3, 5))
sketch12.addConstraint(Sketcher.Constraint("Equal", 5, 13))
sketch12.addConstraint(Sketcher.Constraint("Equal", 13, 15))
sketch12.addConstraint(Sketcher.Constraint("Equal", 15, 17))
sketch12.addConstraint(Sketcher.Constraint("Vertical", 5, 3, 13, 3))
sketch12.addConstraint(Sketcher.Constraint("Vertical", 7, 2, 10, 2))
sketch12.addConstraint(Sketcher.Constraint("Vertical", 5, 2, 12, 2))
sketch12.addConstraint(Sketcher.Constraint("Equal", 7, 11))
sketch12.addConstraint(Sketcher.Constraint("Equal", 4, 14))
sketch12.addConstraint(Sketcher.Constraint("Radius", 1, 0.5))
sketch12.addConstraint(Sketcher.Constraint("DistanceY", 0, 1, 0, 2, 9.0))
sketch12.addConstraint(Sketcher.Constraint("DistanceY", 9, 2, 9, 1, 21.0))
sketch12.addConstraint(Sketcher.Constraint("DistanceY", 7, 1, 7, 2, 0.6))
sketch12.addConstraint(Sketcher.Constraint("DistanceY", 1, 3, -1, 1, 7.0))
sketch12.addConstraint(Sketcher.Constraint("DistanceX", -1, 1, 3, 3, 11.0))
sketch12.addConstraint(Sketcher.Constraint("DistanceX", -1, 1, 6, 2, 7.0))
sketch12.addConstraint(Sketcher.Constraint("DistanceX", 2, 1, 2, 2, 5.75))
sketch12.addConstraint(Sketcher.Constraint("DistanceX", 8, 1, 8, 2, 6.527801))
sketch12.addConstraint(Sketcher.Constraint("DistanceY", 4, 1, 4, 2, 1.227388))
pocket7 = body.newObject("PartDesign::Pocket", "Pocket006")
pocket7.Profile = sketch12
pocket7.Length = 1
pocket7.Reversed = True
doc.recompute()

fillet2 = body.newObject("PartDesign::Fillet", "Fillet001")
fillet2.Base = (pocket7, edges_at(pocket7, [
    (57.928, 4, -1),
    (58.928, 4, -1),
    (57.928, 4, -22),
    (58.928, 4, -22),
]))
fillet2.Radius = 0.5
doc.recompute()

boolean2 = body2.newObject("PartDesign::Boolean", "Boolean001")
boolean2.Type = "Cut"
boolean2.addObjects([body3])

# Sketch on YZ plane
sketch13 = body2.newObject("Sketcher::SketchObject", "Sketch012")
sketch13.AttachmentSupport = (doc.getObject("YZ_Plane001"), [""])
sketch13.MapMode = "FlatFace"
sketch13.addGeometry(Part.ArcOfCircle(Part.Circle(V(4.93, -12.9, 0), V(0, 0, 1), 0.25), math.radians(133), math.radians(270)), False)
sketch13.addGeometry(Part.LineSegment(V(4.93, -13.15, 0), V(8, -13.15, 0)), False)
sketch13.addGeometry(Part.LineSegment(V(8, -13.15, 0), V(8, -9.85, 0)), False)
sketch13.addGeometry(Part.LineSegment(V(8, -9.85, 0), V(4.93, -9.85, 0)), False)
sketch13.addGeometry(Part.ArcOfCircle(Part.Circle(V(4.93, -10.1, 0), V(0, 0, 1), 0.25), math.radians(90), math.radians(227)), False)
sketch13.addGeometry(Part.ArcOfCircle(Part.Circle(V(3.65, -11.5, 0), V(0, 0, 1), 1.65), math.radians(-47), math.radians(47)), False)
sketch13.addConstraint(Sketcher.Constraint("Tangent", 0, 2, 1, 1))
sketch13.addConstraint(Sketcher.Constraint("Coincident", 1, 2, 2, 1))
sketch13.addConstraint(Sketcher.Constraint("Coincident", 2, 2, 3, 1))
sketch13.addConstraint(Sketcher.Constraint("Tangent", 3, 2, 4, 1))
sketch13.addConstraint(Sketcher.Constraint("Tangent", 4, 2, 5, 2))
sketch13.addConstraint(Sketcher.Constraint("Tangent", 5, 1, 0, 1))
sketch13.addConstraint(Sketcher.Constraint("Horizontal", 1))
sketch13.addConstraint(Sketcher.Constraint("Vertical", 2))
sketch13.addConstraint(Sketcher.Constraint("Horizontal", 3))
sketch13.addConstraint(Sketcher.Constraint("Equal", 0, 4))
sketch13.addConstraint(Sketcher.Constraint("Vertical", 0, 3, 4, 3))
sketch13.addConstraint(Sketcher.Constraint("Radius", 0, 0.25))
sketch13.addConstraint(Sketcher.Constraint("Radius", 5, 1.65))
sketch13.addConstraint(Sketcher.Constraint("DistanceY", 2, 1, 2, 2, 3.3))
sketch13.addConstraint(Sketcher.Constraint("DistanceX", -1, 1, 1, 2, 8.0))
sketch13.addConstraint(Sketcher.Constraint("DistanceY", 0, 3, -1, 1, 12.9))
sketch13.addConstraint(Sketcher.Constraint("DistanceX", -1, 1, 5, 3, 3.65))
pad6 = body2.newObject("PartDesign::Pad", "Pad005")
pad6.Profile = sketch13
pad6.Length = 1.5

# Sketch on YZ plane
sketch14 = body2.newObject("Sketcher::SketchObject", "Sketch013")
sketch14.AttachmentSupport = (doc.getObject("YZ_Plane001"), [""])
sketch14.MapMode = "FlatFace"
sketch14.AttachmentOffset = App.Placement(V(0, 0, 80), App.Rotation())
add_polygon(sketch14, [(8, -10.1), (6.6, -10.1), (6.6, -12.9), (8, -12.9)])  # lines 0-3
sketch14.addConstraint(Sketcher.Constraint("Horizontal", 0))
sketch14.addConstraint(Sketcher.Constraint("Vertical", 1))
sketch14.addConstraint(Sketcher.Constraint("Horizontal", 2))
sketch14.addConstraint(Sketcher.Constraint("Vertical", 3))
sketch14.addConstraint(Sketcher.Constraint("DistanceX", 0, 2, 0, 1, 1.4))
sketch14.addConstraint(Sketcher.Constraint("DistanceY", 1, 2, 1, 1, 2.8))
sketch14.addConstraint(Sketcher.Constraint("DistanceX", -1, 1, 2, 2, 8.0))
sketch14.addConstraint(Sketcher.Constraint("DistanceY", 0, 2, -1, 1, 10.1))
pocket8 = body2.newObject("PartDesign::Pocket", "Pocket007")
pocket8.Profile = sketch14
pocket8.Length = 1.5
doc.recompute()

chamfer2 = body2.newObject("PartDesign::Chamfer", "Chamfer001")
chamfer2.Base = (pocket8, edges_at(pocket8, [(0.5, 8, -9.85), (0.5, 8, -13.15)]))
chamfer2.Size = 1

doc.recompute()
